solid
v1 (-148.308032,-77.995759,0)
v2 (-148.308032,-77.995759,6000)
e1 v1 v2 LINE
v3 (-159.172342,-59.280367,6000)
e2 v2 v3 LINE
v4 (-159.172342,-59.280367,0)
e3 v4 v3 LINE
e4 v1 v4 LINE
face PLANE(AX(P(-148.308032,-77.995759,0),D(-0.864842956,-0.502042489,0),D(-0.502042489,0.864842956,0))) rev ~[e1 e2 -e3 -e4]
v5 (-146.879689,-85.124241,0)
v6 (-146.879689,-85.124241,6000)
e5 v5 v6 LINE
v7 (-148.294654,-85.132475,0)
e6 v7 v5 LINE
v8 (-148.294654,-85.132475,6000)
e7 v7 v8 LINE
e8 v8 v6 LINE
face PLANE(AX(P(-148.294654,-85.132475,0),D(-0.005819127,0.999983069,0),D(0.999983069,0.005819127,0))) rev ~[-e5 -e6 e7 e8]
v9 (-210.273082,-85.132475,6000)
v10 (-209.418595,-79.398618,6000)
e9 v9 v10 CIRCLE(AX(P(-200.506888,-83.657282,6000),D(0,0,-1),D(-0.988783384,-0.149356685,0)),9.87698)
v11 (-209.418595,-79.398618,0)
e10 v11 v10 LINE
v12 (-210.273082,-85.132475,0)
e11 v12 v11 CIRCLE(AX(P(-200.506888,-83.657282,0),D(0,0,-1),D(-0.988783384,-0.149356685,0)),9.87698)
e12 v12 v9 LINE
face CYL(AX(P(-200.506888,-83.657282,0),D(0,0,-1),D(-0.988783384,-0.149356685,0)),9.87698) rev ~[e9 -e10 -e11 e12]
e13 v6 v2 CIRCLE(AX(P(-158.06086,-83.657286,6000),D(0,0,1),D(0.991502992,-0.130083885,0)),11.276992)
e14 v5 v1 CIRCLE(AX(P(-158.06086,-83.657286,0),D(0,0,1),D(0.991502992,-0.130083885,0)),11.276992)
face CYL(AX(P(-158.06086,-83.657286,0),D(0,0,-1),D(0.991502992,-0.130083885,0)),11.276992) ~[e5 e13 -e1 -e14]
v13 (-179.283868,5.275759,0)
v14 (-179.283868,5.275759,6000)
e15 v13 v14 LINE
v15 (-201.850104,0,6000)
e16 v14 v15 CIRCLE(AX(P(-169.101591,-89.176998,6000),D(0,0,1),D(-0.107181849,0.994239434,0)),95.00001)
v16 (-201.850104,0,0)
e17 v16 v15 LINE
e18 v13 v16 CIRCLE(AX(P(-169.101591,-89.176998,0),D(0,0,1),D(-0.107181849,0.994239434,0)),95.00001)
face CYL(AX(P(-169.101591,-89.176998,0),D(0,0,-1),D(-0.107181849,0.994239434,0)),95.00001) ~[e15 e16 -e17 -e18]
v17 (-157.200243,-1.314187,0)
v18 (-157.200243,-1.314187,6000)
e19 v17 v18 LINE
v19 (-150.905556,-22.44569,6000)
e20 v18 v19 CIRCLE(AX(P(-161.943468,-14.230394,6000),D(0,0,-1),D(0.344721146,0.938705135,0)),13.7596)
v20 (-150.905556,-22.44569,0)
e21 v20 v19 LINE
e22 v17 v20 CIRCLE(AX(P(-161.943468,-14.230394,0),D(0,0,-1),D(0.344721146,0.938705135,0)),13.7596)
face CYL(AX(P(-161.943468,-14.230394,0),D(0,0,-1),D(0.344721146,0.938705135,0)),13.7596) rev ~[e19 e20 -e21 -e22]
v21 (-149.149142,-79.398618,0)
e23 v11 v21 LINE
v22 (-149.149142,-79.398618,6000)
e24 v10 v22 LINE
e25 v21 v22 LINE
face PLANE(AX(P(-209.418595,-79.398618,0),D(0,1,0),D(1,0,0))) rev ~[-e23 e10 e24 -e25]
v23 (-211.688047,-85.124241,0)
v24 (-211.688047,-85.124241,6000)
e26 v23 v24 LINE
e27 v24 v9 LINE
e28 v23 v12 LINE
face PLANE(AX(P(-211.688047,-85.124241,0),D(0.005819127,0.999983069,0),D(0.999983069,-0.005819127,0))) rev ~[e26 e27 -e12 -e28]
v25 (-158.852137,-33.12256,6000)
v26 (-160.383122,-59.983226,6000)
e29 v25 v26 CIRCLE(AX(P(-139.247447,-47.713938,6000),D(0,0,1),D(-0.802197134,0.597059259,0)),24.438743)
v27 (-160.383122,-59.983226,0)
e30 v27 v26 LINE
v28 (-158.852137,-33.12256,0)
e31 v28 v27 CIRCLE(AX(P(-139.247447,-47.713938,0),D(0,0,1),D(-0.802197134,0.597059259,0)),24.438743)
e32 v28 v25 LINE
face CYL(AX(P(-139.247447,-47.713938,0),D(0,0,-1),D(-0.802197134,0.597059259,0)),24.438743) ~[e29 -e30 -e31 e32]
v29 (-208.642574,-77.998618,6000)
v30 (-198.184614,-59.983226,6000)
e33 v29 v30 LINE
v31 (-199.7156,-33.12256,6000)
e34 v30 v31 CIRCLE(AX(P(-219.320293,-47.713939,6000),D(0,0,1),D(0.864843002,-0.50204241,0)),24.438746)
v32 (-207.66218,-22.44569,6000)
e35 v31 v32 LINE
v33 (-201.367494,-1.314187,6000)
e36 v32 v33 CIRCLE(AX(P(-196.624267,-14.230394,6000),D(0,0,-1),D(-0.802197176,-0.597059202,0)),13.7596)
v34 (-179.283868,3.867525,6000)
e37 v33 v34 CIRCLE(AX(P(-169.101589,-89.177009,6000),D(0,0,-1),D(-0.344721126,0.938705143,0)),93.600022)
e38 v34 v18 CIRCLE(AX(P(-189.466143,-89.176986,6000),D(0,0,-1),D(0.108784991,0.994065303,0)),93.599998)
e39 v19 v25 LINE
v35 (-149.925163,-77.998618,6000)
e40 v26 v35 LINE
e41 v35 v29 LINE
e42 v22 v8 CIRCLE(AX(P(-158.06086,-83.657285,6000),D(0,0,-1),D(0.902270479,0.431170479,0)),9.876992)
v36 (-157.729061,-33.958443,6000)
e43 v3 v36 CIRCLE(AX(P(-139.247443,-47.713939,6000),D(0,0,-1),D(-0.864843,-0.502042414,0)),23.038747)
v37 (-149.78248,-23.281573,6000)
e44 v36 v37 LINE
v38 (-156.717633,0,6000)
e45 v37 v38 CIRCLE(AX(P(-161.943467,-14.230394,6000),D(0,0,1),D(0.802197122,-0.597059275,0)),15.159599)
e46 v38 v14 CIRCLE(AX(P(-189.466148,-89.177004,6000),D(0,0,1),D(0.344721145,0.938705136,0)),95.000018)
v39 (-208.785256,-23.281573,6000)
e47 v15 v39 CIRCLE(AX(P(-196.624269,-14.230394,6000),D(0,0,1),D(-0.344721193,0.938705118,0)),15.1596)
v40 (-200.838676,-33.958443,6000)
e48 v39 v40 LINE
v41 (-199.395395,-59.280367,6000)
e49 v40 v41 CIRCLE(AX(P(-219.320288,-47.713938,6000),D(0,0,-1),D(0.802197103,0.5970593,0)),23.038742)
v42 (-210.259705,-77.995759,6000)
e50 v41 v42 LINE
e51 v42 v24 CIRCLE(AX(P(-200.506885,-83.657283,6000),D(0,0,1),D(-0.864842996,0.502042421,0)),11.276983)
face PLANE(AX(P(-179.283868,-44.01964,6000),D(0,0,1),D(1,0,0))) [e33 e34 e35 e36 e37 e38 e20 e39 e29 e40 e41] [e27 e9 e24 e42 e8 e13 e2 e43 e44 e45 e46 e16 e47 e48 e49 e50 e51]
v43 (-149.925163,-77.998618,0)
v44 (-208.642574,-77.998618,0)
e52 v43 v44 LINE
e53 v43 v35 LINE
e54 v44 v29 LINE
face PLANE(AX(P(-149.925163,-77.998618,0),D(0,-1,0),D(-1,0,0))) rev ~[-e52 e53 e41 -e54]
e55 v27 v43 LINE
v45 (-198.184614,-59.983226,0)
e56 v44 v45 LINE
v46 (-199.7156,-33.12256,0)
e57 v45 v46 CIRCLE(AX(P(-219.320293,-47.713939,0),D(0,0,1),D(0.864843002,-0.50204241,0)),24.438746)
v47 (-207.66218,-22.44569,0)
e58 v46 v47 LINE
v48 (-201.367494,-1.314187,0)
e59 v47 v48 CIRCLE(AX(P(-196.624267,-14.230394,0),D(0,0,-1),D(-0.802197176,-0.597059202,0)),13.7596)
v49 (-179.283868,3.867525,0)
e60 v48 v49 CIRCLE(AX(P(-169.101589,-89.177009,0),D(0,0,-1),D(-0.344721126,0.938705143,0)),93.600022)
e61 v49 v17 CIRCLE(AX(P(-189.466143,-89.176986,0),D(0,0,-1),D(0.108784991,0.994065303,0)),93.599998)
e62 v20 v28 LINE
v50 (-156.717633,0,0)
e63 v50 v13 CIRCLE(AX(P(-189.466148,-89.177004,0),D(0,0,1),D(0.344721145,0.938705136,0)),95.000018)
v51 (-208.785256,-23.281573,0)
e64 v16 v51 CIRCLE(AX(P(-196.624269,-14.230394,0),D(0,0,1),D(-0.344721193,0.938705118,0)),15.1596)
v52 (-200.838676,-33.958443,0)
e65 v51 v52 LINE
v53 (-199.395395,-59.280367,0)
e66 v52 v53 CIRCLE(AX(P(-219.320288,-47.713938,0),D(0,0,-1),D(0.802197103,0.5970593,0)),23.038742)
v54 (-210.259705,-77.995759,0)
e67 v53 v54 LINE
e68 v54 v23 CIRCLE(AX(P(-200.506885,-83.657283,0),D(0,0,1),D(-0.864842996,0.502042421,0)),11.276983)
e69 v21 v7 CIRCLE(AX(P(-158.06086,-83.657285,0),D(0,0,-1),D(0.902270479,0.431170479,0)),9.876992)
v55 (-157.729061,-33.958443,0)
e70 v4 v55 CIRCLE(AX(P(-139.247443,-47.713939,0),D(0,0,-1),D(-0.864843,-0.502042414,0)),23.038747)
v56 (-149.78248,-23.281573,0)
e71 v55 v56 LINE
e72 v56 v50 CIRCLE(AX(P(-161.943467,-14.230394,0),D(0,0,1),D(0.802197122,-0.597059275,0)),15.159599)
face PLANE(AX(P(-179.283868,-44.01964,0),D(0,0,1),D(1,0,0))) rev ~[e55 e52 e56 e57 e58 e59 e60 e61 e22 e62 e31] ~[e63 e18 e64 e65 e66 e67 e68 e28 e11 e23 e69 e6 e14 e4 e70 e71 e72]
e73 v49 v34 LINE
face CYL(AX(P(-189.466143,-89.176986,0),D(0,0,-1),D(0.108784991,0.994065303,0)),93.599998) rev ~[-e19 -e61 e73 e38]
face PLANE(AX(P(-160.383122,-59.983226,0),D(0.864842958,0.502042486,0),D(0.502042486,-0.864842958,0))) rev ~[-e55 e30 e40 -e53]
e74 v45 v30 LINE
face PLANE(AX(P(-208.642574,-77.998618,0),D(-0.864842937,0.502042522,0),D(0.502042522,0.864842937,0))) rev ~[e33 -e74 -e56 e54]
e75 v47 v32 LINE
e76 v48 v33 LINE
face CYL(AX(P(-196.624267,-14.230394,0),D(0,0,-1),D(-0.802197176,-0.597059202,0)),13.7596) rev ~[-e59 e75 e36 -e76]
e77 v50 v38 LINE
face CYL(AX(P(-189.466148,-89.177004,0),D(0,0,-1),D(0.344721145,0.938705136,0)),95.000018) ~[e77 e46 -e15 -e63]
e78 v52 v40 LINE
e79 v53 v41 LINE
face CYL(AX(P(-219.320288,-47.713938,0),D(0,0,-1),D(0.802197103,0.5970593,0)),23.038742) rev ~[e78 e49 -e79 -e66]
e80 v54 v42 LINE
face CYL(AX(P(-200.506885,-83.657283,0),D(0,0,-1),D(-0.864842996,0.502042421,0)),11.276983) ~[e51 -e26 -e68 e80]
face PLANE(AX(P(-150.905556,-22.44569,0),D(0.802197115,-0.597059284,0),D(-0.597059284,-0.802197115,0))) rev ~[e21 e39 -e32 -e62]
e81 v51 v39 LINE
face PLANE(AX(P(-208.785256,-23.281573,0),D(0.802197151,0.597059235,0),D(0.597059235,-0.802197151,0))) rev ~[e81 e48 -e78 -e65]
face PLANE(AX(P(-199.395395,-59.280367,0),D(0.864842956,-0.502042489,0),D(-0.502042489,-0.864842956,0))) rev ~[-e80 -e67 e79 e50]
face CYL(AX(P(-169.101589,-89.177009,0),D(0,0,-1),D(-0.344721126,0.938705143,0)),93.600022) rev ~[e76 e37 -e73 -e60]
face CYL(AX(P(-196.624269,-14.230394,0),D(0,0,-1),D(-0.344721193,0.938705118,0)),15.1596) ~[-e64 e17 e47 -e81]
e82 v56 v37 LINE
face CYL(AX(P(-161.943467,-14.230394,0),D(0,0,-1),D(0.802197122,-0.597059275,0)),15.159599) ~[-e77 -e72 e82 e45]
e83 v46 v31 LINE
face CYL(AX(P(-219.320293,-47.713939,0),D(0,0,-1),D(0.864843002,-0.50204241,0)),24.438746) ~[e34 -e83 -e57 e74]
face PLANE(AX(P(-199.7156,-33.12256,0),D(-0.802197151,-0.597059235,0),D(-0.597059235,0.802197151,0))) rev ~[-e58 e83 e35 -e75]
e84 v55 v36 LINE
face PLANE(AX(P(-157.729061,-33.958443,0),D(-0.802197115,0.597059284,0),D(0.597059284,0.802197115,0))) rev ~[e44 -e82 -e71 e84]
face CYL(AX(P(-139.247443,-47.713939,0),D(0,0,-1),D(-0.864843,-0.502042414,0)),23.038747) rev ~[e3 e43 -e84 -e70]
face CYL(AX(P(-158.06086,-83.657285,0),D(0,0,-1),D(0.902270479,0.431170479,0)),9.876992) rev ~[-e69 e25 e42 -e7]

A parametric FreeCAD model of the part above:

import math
import FreeCAD as App
import Part
import Sketcher

V = App.Vector

doc = App.newDocument("Part")
body = doc.addObject("PartDesign::Body", "Body")

sketch1 = doc.addObject("Sketcher::SketchObject", "Sketch")
body.addObject(sketch1)
sketch1.AttachmentSupport = (doc.XY_Plane, [""])
sketch1.MapMode = "FlatFace"
sketch1.addGeometry(Part.ArcOfCircle(Part.Circle(V(-219.320288, -47.713938, 0), V(0, 0, 1), 23.038742), math.radians(-30.135226), math.radians(36.659575)), False)
sketch1.addGeometry(Part.LineSegment(V(-199.395395, -59.280367, 0), V(-210.259705, -77.995759, 0)), False)
sketch1.addGeometry(Part.ArcOfCircle(Part.Circle(V(-200.506885, -83.657283, 0), V(0, 0, 1), 11.276983), math.radians(149.864782), math.radians(187.474463)), False)
sketch1.addGeometry(Part.LineSegment(V(-211.688047, -85.124241, 0), V(-210.273082, -85.132475, 0)), False)
sketch1.addGeometry(Part.ArcOfCircle(Part.Circle(V(-200.506888, -83.657282, 0), V(0, 0, 1), 9.87698), math.radians(154.458126), math.radians(188.589647)), False)
sketch1.addGeometry(Part.LineSegment(V(-209.418595, -79.398618, 0), V(-149.149142, -79.398618, 0)), False)
sketch1.addGeometry(Part.ArcOfCircle(Part.Circle(V(-158.06086, -83.657285, 0), V(0, 0, 1), 9.876992), math.radians(-8.589618), math.radians(25.541865)), False)
sketch1.addGeometry(Part.LineSegment(V(-148.294654, -85.132475, 0), V(-146.879689, -85.124241, 0)), False)
sketch1.addGeometry(Part.ArcOfCircle(Part.Circle(V(-158.06086, -83.657286, 0), V(0, 0, 1), 11.276992), math.radians(-7.47444), math.radians(30.13521)), False)
sketch1.addGeometry(Part.LineSegment(V(-148.308032, -77.995759, 0), V(-159.172342, -59.280367, 0)), False)
sketch1.addGeometry(Part.ArcOfCircle(Part.Circle(V(-139.247443, -47.713939, 0), V(0, 0, 1), 23.038747), math.radians(143.340434), math.radians(210.135217)), False)
sketch1.addGeometry(Part.LineSegment(V(-157.729061, -33.958443, 0), V(-149.78248, -23.281573, 0)), False)
sketch1.addGeometry(Part.ArcOfCircle(Part.Circle(V(-161.943467, -14.230394, 0), V(0, 0, 1), 15.159599), math.radians(-36.659573), math.radians(69.835228)), False)
sketch1.addGeometry(Part.ArcOfCircle(Part.Circle(V(-189.466148, -89.177004, 0), V(0, 0, 1), 95.000018), math.radians(69.835226), math.radians(83.847112)), False)
sketch1.addGeometry(Part.ArcOfCircle(Part.Circle(V(-169.101591, -89.176998, 0), V(0, 0, 1), 95.00001), math.radians(96.152887), math.radians(110.164775)), False)
sketch1.addGeometry(Part.ArcOfCircle(Part.Circle(V(-196.624269, -14.230394, 0), V(0, 0, 1), 15.1596), math.radians(110.164777), math.radians(216.659572)), False)
sketch1.addGeometry(Part.LineSegment(V(-208.785256, -23.281573, 0), V(-200.838676, -33.958443, 0)), False)
sketch1.addGeometry(Part.LineSegment(V(-149.925163, -77.998618, 0), V(-208.642574, -77.998618, 0)), False)
sketch1.addGeometry(Part.LineSegment(V(-208.642574, -77.998618, 0), V(-198.184614, -59.983226, 0)), False)
sketch1.addGeometry(Part.ArcOfCircle(Part.Circle(V(-219.320293, -47.713939, 0), V(0, 0, 1), 24.438746), math.radians(-30.135217), math.radians(36.65957)), False)
sketch1.addGeometry(Part.LineSegment(V(-199.7156, -33.12256, 0), V(-207.66218, -22.44569, 0)), False)
sketch1.addGeometry(Part.ArcOfCircle(Part.Circle(V(-196.624267, -14.230394, 0), V(0, 0, 1), 13.7596), math.radians(110.16478), math.radians(216.659568)), False)
sketch1.addGeometry(Part.ArcOfCircle(Part.Circle(V(-169.101589, -89.177009, 0), V(0, 0, 1), 93.600022), math.radians(96.245281), math.radians(110.164773)), False)
sketch1.addGeometry(Part.ArcOfCircle(Part.Circle(V(-189.466143, -89.176986, 0), V(0, 0, 1), 93.599998), math.radians(69.835225), math.radians(83.75472)), False)
sketch1.addGeometry(Part.ArcOfCircle(Part.Circle(V(-161.943468, -14.230394, 0), V(0, 0, 1), 13.7596), math.radians(-36.659568), math.radians(69.835226)), False)
sketch1.addGeometry(Part.LineSegment(V(-150.905556, -22.44569, 0), V(-158.852137, -33.12256, 0)), False)
sketch1.addGeometry(Part.ArcOfCircle(Part.Circle(V(-139.247447, -47.713938, 0), V(0, 0, 1), 24.438743), math.radians(143.340428), math.radians(210.135223)), False)
sketch1.addGeometry(Part.LineSegment(V(-160.383122, -59.983226, 0), V(-149.925163, -77.998618, 0)), False)
sketch1.addConstraint(Sketcher.Constraint("Coincident", 0, 1, 1, 1))
sketch1.addConstraint(Sketcher.Constraint("Coincident", 1, 2, 2, 1))
sketch1.addConstraint(Sketcher.Constraint("Coincident", 2, 2, 3, 1))
sketch1.addConstraint(Sketcher.Constraint("Coincident", 3, 2, 4, 2))
sketch1.addConstraint(Sketcher.Constraint("Coincident", 4, 1, 5, 1))
sketch1.addConstraint(Sketcher.Constraint("Coincident", 5, 2, 6, 2))
sketch1.addConstraint(Sketcher.Constraint("Coincident", 6, 1, 7, 1))
sketch1.addConstraint(Sketcher.Constraint("Coincident", 7, 2, 8, 1))
sketch1.addConstraint(Sketcher.Constraint("Coincident", 8, 2, 9, 1))
sketch1.addConstraint(Sketcher.Constraint("Coincident", 9, 2, 10, 2))
sketch1.addConstraint(Sketcher.Constraint("Coincident", 10, 1, 11, 1))
sketch1.addConstraint(Sketcher.Constraint("Coincident", 11, 2, 12, 1))
sketch1.addConstraint(Sketcher.Constraint("Coincident", 12, 2, 13, 1))
sketch1.addConstraint(Sketcher.Constraint("Coincident", 13, 2, 14, 1))
sketch1.addConstraint(Sketcher.Constraint("Coincident", 14, 2, 15, 1))
sketch1.addConstraint(Sketcher.Constraint("Coincident", 15, 2, 16, 1))
sketch1.addConstraint(Sketcher.Constraint("Coincident", 16, 2, 0, 2))
sketch1.addConstraint(Sketcher.Constraint("Coincident", 17, 2, 18, 1))
sketch1.addConstraint(Sketcher.Constraint("Coincident", 18, 2, 19, 1))
sketch1.addConstraint(Sketcher.Constraint("Coincident", 19, 2, 20, 1))
sketch1.addConstraint(Sketcher.Constraint("Coincident", 20, 2, 21, 2))
sketch1.addConstraint(Sketcher.Constraint("Coincident", 21, 1, 22, 2))
sketch1.addConstraint(Sketcher.Constraint("Coincident", 22, 1, 23, 2))
sketch1.addConstraint(Sketcher.Constraint("Coincident", 23, 1, 24, 2))
sketch1.addConstraint(Sketcher.Constraint("Coincident", 24, 1, 25, 1))
sketch1.addConstraint(Sketcher.Constraint("Coincident", 25, 2, 26, 1))
sketch1.addConstraint(Sketcher.Constraint("Coincident", 26, 2, 27, 1))
sketch1.addConstraint(Sketcher.Constraint("Coincident", 27, 2, 17, 1))
sketch1.addConstraint(Sketcher.Constraint("Horizontal", 5))
sketch1.addConstraint(Sketcher.Constraint("Horizontal", 17))
sketch1.addConstraint(Sketcher.Constraint("Coincident", 4, 3, 2, 3))
sketch1.addConstraint(Sketcher.Constraint("Coincident", 8, 3, 6, 3))
sketch1.addConstraint(Sketcher.Constraint("Coincident", 19, 3, 0, 3))
sketch1.addConstraint(Sketcher.Constraint("Coincident", 21, 3, 15, 3))
sketch1.addConstraint(Sketcher.Constraint("Coincident", 24, 3, 12, 3))
sketch1.addConstraint(Sketcher.Constraint("Coincident", 26, 3, 10, 3))
sketch1.addConstraint(Sketcher.Constraint("PointOnObject", 12, 2, -1))
sketch1.addConstraint(Sketcher.Constraint("PointOnObject", 14, 2, -1))
sketch1.addConstraint(Sketcher.Constraint("Radius", 23, 93.599998))
sketch1.addConstraint(Sketcher.Constraint("Radius", 12, 15.159599))
sketch1.addConstraint(Sketcher.Constraint("Radius", 15, 15.1596))
sketch1.addConstraint(Sketcher.Constraint("Radius", 21, 13.7596))
sketch1.addConstraint(Sketcher.Constraint("Radius", 24, 13.7596))
sketch1.addConstraint(Sketcher.Constraint("DistanceY", 4, 1, 17, 2, 1.4))
sketch1.addConstraint(Sketcher.Constraint("Radius", 4, 9.87698))
sketch1.addConstraint(Sketcher.Constraint("Radius", 6, 9.876992))
sketch1.addConstraint(Sketcher.Constraint("Radius", 14, 95.00001))
sketch1.addConstraint(Sketcher.Constraint("Radius", 22, 93.600022))
sketch1.addConstraint(Sketcher.Constraint("Radius", 0, 23.038742))
sketch1.addConstraint(Sketcher.Constraint("Radius", 2, 11.276983))
sketch1.addConstraint(Sketcher.Constraint("Radius", 8, 11.276992))
sketch1.addConstraint(Sketcher.Constraint("Radius", 10, 23.038747))
sketch1.addConstraint(Sketcher.Constraint("Radius", 13, 95.000018))
sketch1.addConstraint(Sketcher.Constraint("Radius", 19, 24.438746))
sketch1.addConstraint(Sketcher.Constraint("Radius", 26, 24.438743))
sketch1.addConstraint(Sketcher.Constraint("DistanceX", 17, 2, 17, 1, 58.717411))
sketch1.addConstraint(Sketcher.Constraint("DistanceX", 19, 2, -1, 1, 199.7156))
sketch1.addConstraint(Sketcher.Constraint("DistanceX", 0, 3, 4, 3, 18.813401))
sketch1.addConstraint(Sketcher.Constraint("DistanceX", 15, 3, 12, 3, 34.680802))
sketch1.addConstraint(Sketcher.Constraint("DistanceX", 2, 2, 13, 3, 22.221899))
sketch1.addConstraint(Sketcher.Constraint("DistanceX", 22, 3, 7, 2, 22.2219))
sketch1.addConstraint(Sketcher.Constraint("DistanceX", 9, 2, 5, 2, 10.0232))
sketch1.addConstraint(Sketcher.Constraint("DistanceX", 9, 2, 10, 3, 19.924899))
sketch1.addConstraint(Sketcher.Constraint("DistanceX", 21, 3, 13, 2, 17.340399))
sketch1.addConstraint(Sketcher.Constraint("DistanceX", 21, 3, 22, 1, 17.340399))
sketch1.addConstraint(Sketcher.Constraint("Distance", 1, 21.64022))
sketch1.addConstraint(Sketcher.Constraint("Distance", 3, 1.414989))
sketch1.addConstraint(Sketcher.Constraint("Distance", 7, 1.414989))
sketch1.addConstraint(Sketcher.Constraint("Distance", 9, 21.64022))
sketch1.addConstraint(Sketcher.Constraint("DistanceX", 5, 1, 5, 2, 60.269453))
sketch1.addConstraint(Sketcher.Constraint("DistanceX", 0, 3, -1, 1, 219.320288))
sketch1.addConstraint(Sketcher.Constraint("DistanceY", 0, 3, -1, 1, 47.713938))
sketch1.addConstraint(Sketcher.Constraint("DistanceY", 4, 3, -1, 1, 83.657282))
sketch1.addConstraint(Sketcher.Constraint("DistanceX", 6, 3, -1, 1, 158.06086))
sketch1.addConstraint(Sketcher.Constraint("DistanceY", 10, 3, -1, 1, 47.713939))
sketch1.addConstraint(Sketcher.Constraint("DistanceX", 14, 3, -1, 1, 169.101591))
sketch1.addConstraint(Sketcher.Constraint("DistanceX", 15, 3, -1, 1, 196.624269))
sketch1.addConstraint(Sketcher.Constraint("DistanceX", 22, 3, -1, 1, 169.101589))
sketch1.addConstraint(Sketcher.Constraint("DistanceY", 22, 3, -1, 1, 89.177009))
sketch1.addConstraint(Sketcher.Constraint("DistanceY", 1, 2, -1, 1, 77.995759))
sketch1.addConstraint(Sketcher.Constraint("DistanceY", 2, 2, -1, 1, 85.124241))
sketch1.addConstraint(Sketcher.Constraint("DistanceY", 4, 1, -1, 1, 79.398618))
sketch1.addConstraint(Sketcher.Constraint("DistanceX", 10, 1, -1, 1, 157.729061))
sketch1.addConstraint(Sketcher.Constraint("DistanceX", 11, 2, -1, 1, 149.78248))
sketch1.addConstraint(Sketcher.Constraint("DistanceX", 20, 2, -1, 1, 207.66218))
sketch1.addConstraint(Sketcher.Constraint("DistanceY", 24, 1, -1, 1, 22.44569))
sketch1.addConstraint(Sketcher.Constraint("DistanceY", 25, 2, -1, 1, 33.12256))
sketch1.addConstraint(Sketcher.Constraint("DistanceY", 15, 2, 15, 3, 9.051179))
sketch1.addConstraint(Sketcher.Constraint("DistanceX", 15, 2, 16, 2, 7.94658))
sketch1.addConstraint(Sketcher.Constraint("DistanceX", 4, 1, 17, 2, 0.776021))
sketch1.addConstraint(Sketcher.Constraint("DistanceX", 0, 1, 18, 2, 1.210781))
sketch1.addConstraint(Sketcher.Constraint("DistanceX", 14, 2, 21, 1, 0.48261))
sketch1.addConstraint(Sketcher.Constraint("DistanceX", 23, 1, 12, 2, 0.48261))
sketch1.addConstraint(Sketcher.Constraint("DistanceX", 26, 2, 9, 2, 1.21078))
pad1 = doc.addObject("PartDesign::Pad", "Pad")
body.addObject(pad1)
pad1.Profile = sketch1
pad1.Length = 6000

doc.recompute()
